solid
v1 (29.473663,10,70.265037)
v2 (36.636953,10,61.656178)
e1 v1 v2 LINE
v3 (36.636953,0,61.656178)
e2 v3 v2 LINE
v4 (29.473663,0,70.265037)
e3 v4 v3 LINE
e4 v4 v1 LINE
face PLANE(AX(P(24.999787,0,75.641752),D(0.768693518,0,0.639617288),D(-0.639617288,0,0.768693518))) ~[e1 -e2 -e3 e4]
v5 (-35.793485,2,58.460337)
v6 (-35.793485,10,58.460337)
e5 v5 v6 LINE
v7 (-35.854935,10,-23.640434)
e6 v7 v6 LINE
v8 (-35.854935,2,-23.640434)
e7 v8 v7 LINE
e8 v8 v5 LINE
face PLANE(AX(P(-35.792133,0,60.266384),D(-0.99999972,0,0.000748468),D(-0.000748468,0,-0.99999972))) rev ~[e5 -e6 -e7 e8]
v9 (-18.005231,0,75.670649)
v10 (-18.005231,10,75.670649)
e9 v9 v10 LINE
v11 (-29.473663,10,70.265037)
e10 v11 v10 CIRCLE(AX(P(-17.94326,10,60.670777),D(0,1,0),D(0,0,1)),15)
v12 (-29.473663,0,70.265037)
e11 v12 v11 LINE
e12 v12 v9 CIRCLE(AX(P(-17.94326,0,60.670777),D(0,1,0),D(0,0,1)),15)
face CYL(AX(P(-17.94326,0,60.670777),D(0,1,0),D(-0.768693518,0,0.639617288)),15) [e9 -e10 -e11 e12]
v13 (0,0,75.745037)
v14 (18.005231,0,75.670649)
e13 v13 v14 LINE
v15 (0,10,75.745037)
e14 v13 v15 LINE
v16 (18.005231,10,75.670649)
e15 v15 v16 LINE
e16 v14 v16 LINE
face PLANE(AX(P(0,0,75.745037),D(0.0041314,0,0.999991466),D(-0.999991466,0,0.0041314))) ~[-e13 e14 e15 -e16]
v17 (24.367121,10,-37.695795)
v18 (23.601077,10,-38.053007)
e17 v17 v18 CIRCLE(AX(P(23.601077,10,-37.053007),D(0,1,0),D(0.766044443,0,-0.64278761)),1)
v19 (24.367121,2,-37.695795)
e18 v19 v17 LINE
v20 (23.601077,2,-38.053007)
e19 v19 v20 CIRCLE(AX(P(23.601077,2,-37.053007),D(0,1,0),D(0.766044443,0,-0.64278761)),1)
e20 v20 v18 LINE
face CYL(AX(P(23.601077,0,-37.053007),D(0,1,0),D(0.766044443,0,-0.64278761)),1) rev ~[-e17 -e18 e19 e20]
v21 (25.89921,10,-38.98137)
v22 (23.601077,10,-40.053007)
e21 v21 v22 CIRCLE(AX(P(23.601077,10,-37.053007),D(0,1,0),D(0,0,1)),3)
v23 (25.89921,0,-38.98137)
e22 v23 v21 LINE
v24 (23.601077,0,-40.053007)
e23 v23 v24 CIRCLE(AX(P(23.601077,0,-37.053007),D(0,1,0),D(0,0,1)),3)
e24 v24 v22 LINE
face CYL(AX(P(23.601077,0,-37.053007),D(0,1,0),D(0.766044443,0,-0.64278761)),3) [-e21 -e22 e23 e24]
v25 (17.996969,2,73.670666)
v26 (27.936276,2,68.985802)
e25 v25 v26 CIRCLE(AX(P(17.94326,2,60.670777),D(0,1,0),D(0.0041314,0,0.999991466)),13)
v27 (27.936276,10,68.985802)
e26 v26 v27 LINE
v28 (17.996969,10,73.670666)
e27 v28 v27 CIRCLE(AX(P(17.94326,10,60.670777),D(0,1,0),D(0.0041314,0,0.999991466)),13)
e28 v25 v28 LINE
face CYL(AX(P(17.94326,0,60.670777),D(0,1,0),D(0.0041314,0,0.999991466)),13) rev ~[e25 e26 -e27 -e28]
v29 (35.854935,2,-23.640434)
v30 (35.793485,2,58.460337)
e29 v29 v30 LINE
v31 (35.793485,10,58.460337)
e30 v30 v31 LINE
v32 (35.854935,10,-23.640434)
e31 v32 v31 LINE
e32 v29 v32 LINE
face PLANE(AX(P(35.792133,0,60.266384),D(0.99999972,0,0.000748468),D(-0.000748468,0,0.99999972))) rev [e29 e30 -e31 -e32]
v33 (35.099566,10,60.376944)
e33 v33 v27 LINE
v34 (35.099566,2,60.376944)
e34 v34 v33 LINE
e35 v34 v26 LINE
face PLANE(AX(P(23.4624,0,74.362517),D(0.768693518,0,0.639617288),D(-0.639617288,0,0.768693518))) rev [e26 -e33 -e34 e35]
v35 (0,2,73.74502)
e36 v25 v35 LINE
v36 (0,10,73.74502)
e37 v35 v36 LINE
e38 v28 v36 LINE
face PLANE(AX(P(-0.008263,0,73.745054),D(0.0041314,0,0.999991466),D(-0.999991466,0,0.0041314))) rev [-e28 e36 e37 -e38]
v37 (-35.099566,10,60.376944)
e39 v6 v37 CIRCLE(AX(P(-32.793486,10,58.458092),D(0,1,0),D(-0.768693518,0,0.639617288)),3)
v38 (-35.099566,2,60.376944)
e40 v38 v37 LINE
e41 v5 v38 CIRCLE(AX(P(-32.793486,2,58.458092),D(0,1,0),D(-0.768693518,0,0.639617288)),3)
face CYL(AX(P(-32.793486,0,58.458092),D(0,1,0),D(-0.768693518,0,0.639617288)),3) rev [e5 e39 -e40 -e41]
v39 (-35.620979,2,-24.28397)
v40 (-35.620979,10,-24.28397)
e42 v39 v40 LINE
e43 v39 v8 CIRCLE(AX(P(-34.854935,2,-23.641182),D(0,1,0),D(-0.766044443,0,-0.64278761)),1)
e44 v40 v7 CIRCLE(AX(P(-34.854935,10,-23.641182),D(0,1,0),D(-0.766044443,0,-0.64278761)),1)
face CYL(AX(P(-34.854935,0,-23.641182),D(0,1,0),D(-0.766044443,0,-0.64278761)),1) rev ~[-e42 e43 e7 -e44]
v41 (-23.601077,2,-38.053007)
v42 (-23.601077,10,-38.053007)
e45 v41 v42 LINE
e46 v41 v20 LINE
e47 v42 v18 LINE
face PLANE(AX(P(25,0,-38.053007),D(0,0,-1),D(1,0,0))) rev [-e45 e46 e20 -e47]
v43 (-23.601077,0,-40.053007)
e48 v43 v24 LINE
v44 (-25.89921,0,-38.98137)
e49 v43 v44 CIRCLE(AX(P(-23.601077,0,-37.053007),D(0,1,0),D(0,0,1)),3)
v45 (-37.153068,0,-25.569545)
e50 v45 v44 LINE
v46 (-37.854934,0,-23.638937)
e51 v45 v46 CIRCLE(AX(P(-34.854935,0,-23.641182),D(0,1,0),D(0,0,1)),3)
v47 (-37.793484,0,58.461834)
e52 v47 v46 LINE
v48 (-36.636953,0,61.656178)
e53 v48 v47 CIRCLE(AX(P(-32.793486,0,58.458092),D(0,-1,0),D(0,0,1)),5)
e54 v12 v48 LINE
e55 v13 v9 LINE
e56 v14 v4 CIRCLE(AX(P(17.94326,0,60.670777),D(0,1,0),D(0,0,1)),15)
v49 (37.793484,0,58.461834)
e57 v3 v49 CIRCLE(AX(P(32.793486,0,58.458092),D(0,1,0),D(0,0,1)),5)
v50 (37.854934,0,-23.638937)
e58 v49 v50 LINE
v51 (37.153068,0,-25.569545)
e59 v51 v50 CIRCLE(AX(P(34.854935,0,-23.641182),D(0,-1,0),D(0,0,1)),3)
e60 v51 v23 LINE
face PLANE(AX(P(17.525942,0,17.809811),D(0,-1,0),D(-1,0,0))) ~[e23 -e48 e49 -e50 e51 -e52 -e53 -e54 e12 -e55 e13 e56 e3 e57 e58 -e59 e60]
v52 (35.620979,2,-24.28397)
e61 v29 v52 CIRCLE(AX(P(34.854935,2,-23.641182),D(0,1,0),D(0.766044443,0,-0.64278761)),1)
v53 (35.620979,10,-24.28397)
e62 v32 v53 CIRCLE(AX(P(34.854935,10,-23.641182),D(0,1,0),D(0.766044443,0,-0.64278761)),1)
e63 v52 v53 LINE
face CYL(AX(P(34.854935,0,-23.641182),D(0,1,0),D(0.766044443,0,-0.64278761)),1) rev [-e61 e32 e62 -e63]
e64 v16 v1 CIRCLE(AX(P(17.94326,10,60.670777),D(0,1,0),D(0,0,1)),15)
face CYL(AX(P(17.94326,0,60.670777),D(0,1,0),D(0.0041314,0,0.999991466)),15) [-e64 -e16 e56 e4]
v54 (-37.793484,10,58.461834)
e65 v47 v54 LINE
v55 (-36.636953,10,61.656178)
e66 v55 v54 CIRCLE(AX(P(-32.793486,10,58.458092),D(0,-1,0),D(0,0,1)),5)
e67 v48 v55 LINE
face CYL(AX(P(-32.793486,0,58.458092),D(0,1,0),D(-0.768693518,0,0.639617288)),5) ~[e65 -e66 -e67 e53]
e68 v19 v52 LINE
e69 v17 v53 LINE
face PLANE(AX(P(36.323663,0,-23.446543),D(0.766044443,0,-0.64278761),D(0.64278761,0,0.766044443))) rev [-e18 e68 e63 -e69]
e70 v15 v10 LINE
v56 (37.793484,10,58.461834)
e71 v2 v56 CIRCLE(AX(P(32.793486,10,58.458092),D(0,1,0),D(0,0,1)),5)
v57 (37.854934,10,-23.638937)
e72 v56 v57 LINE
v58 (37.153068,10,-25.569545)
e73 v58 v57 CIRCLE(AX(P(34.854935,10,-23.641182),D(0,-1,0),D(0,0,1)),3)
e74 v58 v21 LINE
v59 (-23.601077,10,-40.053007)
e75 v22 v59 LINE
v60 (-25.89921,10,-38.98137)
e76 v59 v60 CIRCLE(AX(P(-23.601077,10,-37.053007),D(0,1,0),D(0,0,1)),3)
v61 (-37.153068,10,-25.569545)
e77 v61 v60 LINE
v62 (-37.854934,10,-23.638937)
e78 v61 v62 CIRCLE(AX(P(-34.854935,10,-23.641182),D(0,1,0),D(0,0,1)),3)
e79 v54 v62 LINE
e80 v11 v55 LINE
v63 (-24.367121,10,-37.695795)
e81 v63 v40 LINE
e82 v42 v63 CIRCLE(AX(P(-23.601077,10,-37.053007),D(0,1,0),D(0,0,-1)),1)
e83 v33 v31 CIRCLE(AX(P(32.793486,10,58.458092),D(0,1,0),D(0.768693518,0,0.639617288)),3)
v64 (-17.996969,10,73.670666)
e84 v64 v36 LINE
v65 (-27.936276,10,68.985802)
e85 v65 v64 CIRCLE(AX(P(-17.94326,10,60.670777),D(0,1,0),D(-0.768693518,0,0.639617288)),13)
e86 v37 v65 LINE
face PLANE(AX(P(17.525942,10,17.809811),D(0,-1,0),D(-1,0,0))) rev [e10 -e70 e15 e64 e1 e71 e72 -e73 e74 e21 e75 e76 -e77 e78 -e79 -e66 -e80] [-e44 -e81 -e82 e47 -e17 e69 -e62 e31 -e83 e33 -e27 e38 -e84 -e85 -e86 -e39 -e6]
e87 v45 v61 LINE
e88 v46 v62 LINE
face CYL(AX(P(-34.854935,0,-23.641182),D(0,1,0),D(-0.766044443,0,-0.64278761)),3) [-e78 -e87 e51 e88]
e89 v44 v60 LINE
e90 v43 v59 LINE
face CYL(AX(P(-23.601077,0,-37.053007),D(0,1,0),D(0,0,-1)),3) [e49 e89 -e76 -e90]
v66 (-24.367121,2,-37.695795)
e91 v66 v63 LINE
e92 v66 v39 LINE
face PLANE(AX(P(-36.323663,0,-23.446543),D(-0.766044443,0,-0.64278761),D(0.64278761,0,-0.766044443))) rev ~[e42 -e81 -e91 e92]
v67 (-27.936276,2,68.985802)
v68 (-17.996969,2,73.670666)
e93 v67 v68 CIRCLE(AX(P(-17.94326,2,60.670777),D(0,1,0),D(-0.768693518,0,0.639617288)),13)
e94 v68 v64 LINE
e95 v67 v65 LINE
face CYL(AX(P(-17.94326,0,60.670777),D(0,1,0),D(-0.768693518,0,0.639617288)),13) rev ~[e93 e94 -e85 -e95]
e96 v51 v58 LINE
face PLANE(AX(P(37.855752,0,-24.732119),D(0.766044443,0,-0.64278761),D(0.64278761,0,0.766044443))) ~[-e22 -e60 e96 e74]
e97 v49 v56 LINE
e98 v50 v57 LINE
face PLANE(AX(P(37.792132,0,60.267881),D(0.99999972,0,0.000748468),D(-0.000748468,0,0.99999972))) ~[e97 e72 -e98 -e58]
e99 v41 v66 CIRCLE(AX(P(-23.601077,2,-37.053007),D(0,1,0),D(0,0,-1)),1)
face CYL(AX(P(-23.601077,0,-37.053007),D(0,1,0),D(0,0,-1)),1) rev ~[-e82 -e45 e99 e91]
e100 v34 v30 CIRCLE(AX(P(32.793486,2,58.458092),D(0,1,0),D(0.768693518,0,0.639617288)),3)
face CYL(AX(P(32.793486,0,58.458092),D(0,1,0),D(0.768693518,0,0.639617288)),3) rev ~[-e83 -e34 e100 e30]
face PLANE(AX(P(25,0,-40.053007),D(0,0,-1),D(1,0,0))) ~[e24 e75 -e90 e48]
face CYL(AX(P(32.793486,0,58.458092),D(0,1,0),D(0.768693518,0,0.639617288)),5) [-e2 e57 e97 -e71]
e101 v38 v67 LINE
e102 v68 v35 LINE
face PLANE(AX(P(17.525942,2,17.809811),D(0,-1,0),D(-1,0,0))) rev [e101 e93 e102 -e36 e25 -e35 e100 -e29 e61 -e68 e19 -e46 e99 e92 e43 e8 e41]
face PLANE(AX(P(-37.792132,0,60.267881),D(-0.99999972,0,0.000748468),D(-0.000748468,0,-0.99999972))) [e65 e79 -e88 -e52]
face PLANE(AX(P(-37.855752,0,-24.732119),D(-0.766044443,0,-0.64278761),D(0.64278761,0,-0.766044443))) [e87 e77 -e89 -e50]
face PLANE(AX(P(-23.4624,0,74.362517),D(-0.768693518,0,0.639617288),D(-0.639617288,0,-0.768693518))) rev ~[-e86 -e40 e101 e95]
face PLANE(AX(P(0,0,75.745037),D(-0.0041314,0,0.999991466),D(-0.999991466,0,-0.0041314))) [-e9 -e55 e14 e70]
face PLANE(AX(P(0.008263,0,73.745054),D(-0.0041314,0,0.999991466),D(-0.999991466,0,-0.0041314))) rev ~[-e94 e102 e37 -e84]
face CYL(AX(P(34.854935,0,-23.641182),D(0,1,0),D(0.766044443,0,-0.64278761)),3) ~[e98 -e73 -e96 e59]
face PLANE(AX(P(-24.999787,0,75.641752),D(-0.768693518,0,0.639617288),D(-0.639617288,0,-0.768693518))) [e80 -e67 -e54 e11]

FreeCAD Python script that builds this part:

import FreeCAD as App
import Part
import Sketcher
from FreeCAD import Vector
Q = App.Units.Quantity


def edges_at(feature, points):
    """Names of the edges that pass closest to the given points."""
    edges = feature.Shape.Edges
    near = lambda p: min(range(len(edges)), key=lambda i: edges[i].distToShape(Part.Vertex(*p))[0])
    return sorted({f"Edge{near(p) + 1}" for p in points})


def faces_at(feature, points):
    """Names of the faces that lie closest to the given points."""
    faces = feature.Shape.Faces
    near = lambda p: min(range(len(faces)), key=lambda i: faces[i].distToShape(Part.Vertex(*p))[0])
    return sorted({f"Face{near(p) + 1}" for p in points})


def add_polygon(sketch, points):
    """Adds a closed chain of lines whose ends are joined by coincident constraints."""
    first, n = sketch.GeometryCount, len(points)
    for a, b in zip(points, points[1:] + points[:1]):
        sketch.addGeometry(Part.LineSegment(App.Vector(*a, 0), App.Vector(*b, 0)), False)
    for i in range(n):
        sketch.addConstraint(Sketcher.Constraint("Coincident", first + i, 2, first + (i + 1) % n, 1))

doc = App.newDocument("Part")
params = doc.addObject("Spreadsheet::Sheet", "Params")
for row, (alias, value) in enumerate([
    ("sketch1_width", "25 mm"),
    ("sketch1_length", "25 mm"),
    ("sketch1_length2", "20 mm"),
    ("pad1_length", "10 mm"),
    ("fillet_radius", "15 mm"),
    ("fillet2_radius", "5 mm"),
    ("fillet3_radius", "3 mm"),
    ("fillet4_radius", "3 mm"),
    ("thickness_wall", "2 mm"),
], start=1):
    params.set(f"A{row}", alias)
    params.set(f"B{row}", "=" + value)
    params.setAlias(f"B{row}", alias)

body = doc.addObject("PartDesign::Body", "Body")

sketch1 = doc.addObject("Sketcher::SketchObject", "Sketch")
body.addObject(sketch1)
sketch1.AttachmentSupport = (doc.XZ_Plane, [""])
sketch1.MapMode = "FlatFace"
add_polygon(sketch1, [(-25, 76), (0, 76), (0, -40), (-25, -40), (-38, -25), (-38, 60)])
sketch1.addConstraint([
    Sketcher.Constraint("Vertical", 1),
    Sketcher.Constraint("Horizontal", 2),
    Sketcher.Constraint("PointOnObject", 0, 2, -2),
    Sketcher.Constraint("Equal", 3, 5),
    Sketcher.Constraint("DistanceX", 2, 2, 2, 1, Q("25 mm")),
    Sketcher.Constraint("Angle", 3, Q("130 deg")),
    Sketcher.Constraint("Distance", 0, Q("25 mm")),
    Sketcher.Constraint("Distance", 3, Q("20 mm")),
    Sketcher.Constraint("DistanceY", 3, 2, 4, 2, Q("85 mm")),
    Sketcher.Constraint("DistanceY", 1, 2, 1, 1, Q("115.798044 mm")),
    Sketcher.Constraint("DistanceY", 3, 2, -1, 1, Q("24.732119 mm")),
    Sketcher.Constraint("DistanceY", -1, 1, 5, 2, Q("75.641752 mm")),
])
sketch1.setExpression("Constraints[10]", "Params.sketch1_width")
sketch1.setExpression("Constraints[12]", "Params.sketch1_length")
sketch1.setExpression("Constraints[13]", "Params.sketch1_length2")
pad1 = doc.addObject("PartDesign::Pad", "Pad")
body.addObject(pad1)
pad1.Profile = sketch1
pad1.setExpression("Length", "Params.pad1_length")
pad1.Reversed = True
doc.recompute()

mirrored = doc.addObject("PartDesign::Mirrored", "Mirrored")
body.addObject(mirrored)
mirrored.Originals = [pad1]
mirrored.MirrorPlane = (doc.YZ_Plane, [""])
body.Tip = mirrored
doc.recompute()

fillet = doc.addObject("PartDesign::Fillet", "Fillet")
body.addObject(fillet)
fillet.Base = (mirrored, edges_at(mirrored, [(-25, 5, 75.642), (25, 5, 75.642)]))
fillet.setExpression("Radius", "Params.fillet_radius")
doc.recompute()

fillet2 = doc.addObject("PartDesign::Fillet", "Fillet001")
body.addObject(fillet2)
fillet2.Base = (fillet, edges_at(fillet, [(-37.792, 5, 60.268), (37.792, 5, 60.268)]))
fillet2.setExpression("Radius", "Params.fillet2_radius")
doc.recompute()

fillet3 = doc.addObject("PartDesign::Fillet", "Fillet002")
body.addObject(fillet3)
fillet3.Base = (fillet2, edges_at(fillet2, [(-25, 5, -40.053), (25, 5, -40.053)]))
fillet3.setExpression("Radius", "Params.fillet3_radius")
doc.recompute()

fillet4 = doc.addObject("PartDesign::Fillet", "Fillet003")
body.addObject(fillet4)
fillet4.Base = (fillet3, edges_at(fillet3, [(-37.856, 5, -24.732), (37.856, 5, -24.732)]))
fillet4.setExpression("Radius", "Params.fillet4_radius")
doc.recompute()

thickness = doc.addObject("PartDesign::Thickness", "Thickness")
body.addObject(thickness)
thickness.Base = (fillet4, faces_at(fillet4, [(0, 10, 17.846)]))
thickness.setExpression("Value", "Params.thickness_wall")
thickness.Reversed = True
thickness.Join = "Intersection"

doc.recompute()
